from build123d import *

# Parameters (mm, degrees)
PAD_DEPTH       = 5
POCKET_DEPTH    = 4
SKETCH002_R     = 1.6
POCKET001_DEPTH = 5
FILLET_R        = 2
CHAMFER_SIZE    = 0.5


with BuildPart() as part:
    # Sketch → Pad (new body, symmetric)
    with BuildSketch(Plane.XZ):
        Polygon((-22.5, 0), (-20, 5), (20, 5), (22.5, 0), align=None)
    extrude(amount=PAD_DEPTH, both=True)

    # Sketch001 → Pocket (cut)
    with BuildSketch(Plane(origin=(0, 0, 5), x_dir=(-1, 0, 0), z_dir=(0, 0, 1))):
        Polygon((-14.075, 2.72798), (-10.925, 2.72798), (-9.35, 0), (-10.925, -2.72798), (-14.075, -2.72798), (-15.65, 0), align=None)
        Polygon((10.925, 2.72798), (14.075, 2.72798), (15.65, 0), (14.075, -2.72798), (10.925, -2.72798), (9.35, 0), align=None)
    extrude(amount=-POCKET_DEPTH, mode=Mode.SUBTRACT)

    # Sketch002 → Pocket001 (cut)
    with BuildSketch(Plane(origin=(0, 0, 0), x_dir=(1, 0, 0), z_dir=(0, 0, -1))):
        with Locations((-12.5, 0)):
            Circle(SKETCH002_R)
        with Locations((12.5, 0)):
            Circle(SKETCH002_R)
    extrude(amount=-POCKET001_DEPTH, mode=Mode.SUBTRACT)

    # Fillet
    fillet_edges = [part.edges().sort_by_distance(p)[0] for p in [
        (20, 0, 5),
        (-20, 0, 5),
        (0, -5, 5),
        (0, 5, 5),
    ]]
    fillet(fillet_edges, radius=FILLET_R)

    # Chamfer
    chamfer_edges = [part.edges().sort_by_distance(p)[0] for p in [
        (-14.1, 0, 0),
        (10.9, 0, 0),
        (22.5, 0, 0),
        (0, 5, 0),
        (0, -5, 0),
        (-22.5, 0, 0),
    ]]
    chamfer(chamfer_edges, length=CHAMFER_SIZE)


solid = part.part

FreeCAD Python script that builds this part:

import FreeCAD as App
import Part
import Sketcher
from FreeCAD import Vector
Q = App.Units.Quantity


def edges_at(feature, points):
    """Names of the edges that pass closest to the given points."""
    edges = feature.Shape.Edges
    near = lambda p: min(range(len(edges)), key=lambda i: edges[i].distToShape(Part.Vertex(*p))[0])
    return sorted({f"Edge{near(p) + 1}" for p in points})

doc = App.newDocument("Part")
body = doc.addObject("PartDesign::Body", "Body")

# Sketch on XZ plane
sketch1 = doc.addObject("Sketcher::SketchObject", "Sketch")
body.addObject(sketch1)
sketch1.AttachmentSupport = (doc.XZ_Plane, [""])
sketch1.MapMode = "FlatFace"
sketch1.addGeometry(Part.LineSegment(Vector(-20, 5, 0), Vector(-22, 0, 0)), False)
sketch1.addGeometry(Part.LineSegment(Vector(-22, 0, 0), Vector(22, 0, 0)), False)
sketch1.addGeometry(Part.LineSegment(Vector(22, 0, 0), Vector(20, 5, 0)), False)
sketch1.addGeometry(Part.LineSegment(Vector(20, 5, 0), Vector(-20, 5, 0)), False)
sketch1.addConstraint(Sketcher.Constraint("Coincident", 0, 2, 1, 1))
sketch1.addConstraint(Sketcher.Constraint("Coincident", 1, 2, 2, 1))
sketch1.addConstraint(Sketcher.Constraint("Coincident", 2, 2, 3, 1))
sketch1.addConstraint(Sketcher.Constraint("Coincident", 3, 2, 0, 1))
sketch1.addConstraint(Sketcher.Constraint("Horizontal", 1))
sketch1.addConstraint(Sketcher.Constraint("Horizontal", 3))
sketch1.addConstraint(Sketcher.Constraint("Symmetric", 0, 2, 1, 2, -1, 1))
sketch1.addConstraint(Sketcher.Constraint("Equal", 0, 2))
sketch1.addConstraint(Sketcher.Constraint("DistanceX", 1, 1, 1, 2, 45.0))
sketch1.addConstraint(Sketcher.Constraint("DistanceX", 3, 2, 3, 1, 40.0))
sketch1.addConstraint(Sketcher.Constraint("DistanceY", -1, 1, 2, 2, 5.0))
pad1 = doc.addObject("PartDesign::Pad", "Pad")
body.addObject(pad1)
pad1.Profile = sketch1
pad1.Length = 10
pad1.Midplane = True

# Sketch on XY plane
sketch2 = doc.addObject("Sketcher::SketchObject", "Sketch001")
body.addObject(sketch2)
sketch2.AttachmentSupport = (doc.XY_Plane, [""])
sketch2.MapMode = "FlatFace"
sketch2.AttachmentOffset = App.Placement(Vector(0, 0, 5), App.Rotation())
sketch2.addGeometry(Part.LineSegment(Vector(10.9, -2.7, 0), Vector(14.1, -2.7, 0)), False)
sketch2.addGeometry(Part.LineSegment(Vector(14.1, -2.7, 0), Vector(15.7, 0, 0)), False)
sketch2.addGeometry(Part.LineSegment(Vector(15.7, 0, 0), Vector(14.1, 2.7, 0)), False)
sketch2.addGeometry(Part.LineSegment(Vector(14.1, 2.7, 0), Vector(10.9, 2.7, 0)), False)
sketch2.addGeometry(Part.LineSegment(Vector(10.9, 2.7, 0), Vector(9.3, 0, 0)), False)
sketch2.addGeometry(Part.LineSegment(Vector(9.3, 0, 0), Vector(10.9, -2.7, 0)), False)
sketch2.addGeometry(Part.LineSegment(Vector(-14.1, -2.7, 0), Vector(-10.9, -2.7, 0)), False)
sketch2.addGeometry(Part.LineSegment(Vector(-10.9, -2.7, 0), Vector(-9.3, 0, 0)), False)
sketch2.addGeometry(Part.LineSegment(Vector(-9.3, 0, 0), Vector(-10.9, 2.7, 0)), False)
sketch2.addGeometry(Part.LineSegment(Vector(-10.9, 2.7, 0), Vector(-14.1, 2.7, 0)), False)
sketch2.addGeometry(Part.LineSegment(Vector(-14.1, 2.7, 0), Vector(-15.7, 0, 0)), False)
sketch2.addGeometry(Part.LineSegment(Vector(-15.7, 0, 0), Vector(-14.1, -2.7, 0)), False)
sketch2.addConstraint(Sketcher.Constraint("Coincident", 0, 2, 1, 1))
sketch2.addConstraint(Sketcher.Constraint("Coincident", 1, 2, 2, 1))
sketch2.addConstraint(Sketcher.Constraint("Coincident", 2, 2, 3, 1))
sketch2.addConstraint(Sketcher.Constraint("Coincident", 3, 2, 4, 1))
sketch2.addConstraint(Sketcher.Constraint("Coincident", 4, 2, 5, 1))
sketch2.addConstraint(Sketcher.Constraint("Coincident", 5, 2, 0, 1))
sketch2.addConstraint(Sketcher.Constraint("Coincident", 6, 2, 7, 1))
sketch2.addConstraint(Sketcher.Constraint("Coincident", 7, 2, 8, 1))
sketch2.addConstraint(Sketcher.Constraint("Coincident", 8, 2, 9, 1))
sketch2.addConstraint(Sketcher.Constraint("Coincident", 9, 2, 10, 1))
sketch2.addConstraint(Sketcher.Constraint("Coincident", 10, 2, 11, 1))
sketch2.addConstraint(Sketcher.Constraint("Coincident", 11, 2, 6, 1))
sketch2.addConstraint(Sketcher.Constraint("Horizontal", 0))
sketch2.addConstraint(Sketcher.Constraint("Horizontal", 3))
sketch2.addConstraint(Sketcher.Constraint("Horizontal", 6))
sketch2.addConstraint(Sketcher.Constraint("Horizontal", 9))
sketch2.addConstraint(Sketcher.Constraint("Symmetric", 3, 2, 6, 2, -1, 1))
sketch2.addConstraint(Sketcher.Constraint("Symmetric", 4, 2, 7, 2, -1, 1))
sketch2.addConstraint(Sketcher.Constraint("Symmetric", 5, 2, 8, 2, -1, 1))
sketch2.addConstraint(Sketcher.Constraint("Symmetric", 1, 2, 10, 2, -1, 1))
sketch2.addConstraint(Sketcher.Constraint("Symmetric", 5, 2, 6, 2, -2))
sketch2.addConstraint(Sketcher.Constraint("PointOnObject", 1, 2, -1))
sketch2.addConstraint(Sketcher.Constraint("PointOnObject", 4, 2, -1))
sketch2.addConstraint(Sketcher.Constraint("Parallel", 1, 4))
sketch2.addConstraint(Sketcher.Constraint("Parallel", 2, 5))
sketch2.addConstraint(Sketcher.Constraint("Parallel", 7, 10))
sketch2.addConstraint(Sketcher.Constraint("Parallel", 8, 11))
sketch2.addConstraint(Sketcher.Constraint("Angle", 1, Q("60 deg")))
sketch2.addConstraint(Sketcher.Constraint("DistanceX", 6, 2, 0, 2, 25.0))
sketch2.addConstraint(Sketcher.Constraint("DistanceX", 0, 1, 0, 2, 3.15))
sketch2.addConstraint(Sketcher.Constraint("DistanceX", 4, 2, 1, 2, 6.3))
pocket1 = doc.addObject("PartDesign::Pocket", "Pocket")
body.addObject(pocket1)
pocket1.Profile = sketch2
pocket1.Length = 4

# Sketch on XY plane
sketch3 = doc.addObject("Sketcher::SketchObject", "Sketch002")
body.addObject(sketch3)
sketch3.AttachmentSupport = (doc.XY_Plane, [""])
sketch3.MapMode = "FlatFace"
sketch3.addGeometry(Part.Circle(Vector(-12.5, 0, 0), Vector(0, 0, 1), 1.6), False)
sketch3.addGeometry(Part.Circle(Vector(12.5, 0, 0), Vector(0, 0, 1), 1.6), False)
sketch3.addConstraint(Sketcher.Constraint("Equal", 0, 1))
sketch3.addConstraint(Sketcher.Constraint("Symmetric", 0, 3, 1, 3, -1, 1))
sketch3.addConstraint(Sketcher.Constraint("PointOnObject", 0, 3, -1))
sketch3.addConstraint(Sketcher.Constraint("Diameter", 0, 3.2))
sketch3.addConstraint(Sketcher.Constraint("DistanceX", 0, 3, 1, 3, 25.0))
pocket2 = doc.addObject("PartDesign::Pocket", "Pocket001")
body.addObject(pocket2)
pocket2.Profile = sketch3
pocket2.Length = 5
pocket2.Reversed = True
doc.recompute()

fillet = doc.addObject("PartDesign::Fillet", "Fillet")
body.addObject(fillet)
fillet.Base = (pocket2, edges_at(pocket2, [
    (20, 0, 5),
    (-20, 0, 5),
    (0, -5, 5),
    (0, 5, 5),
]))
fillet.Radius = 2
doc.recompute()

chamfer = doc.addObject("PartDesign::Chamfer", "Chamfer")
body.addObject(chamfer)
chamfer.Base = (fillet, edges_at(fillet, [
    (-14.1, 0, 0),
    (10.9, 0, 0),
    (22.5, 0, 0),
    (0, 5, 0),
    (0, -5, 0),
    (-22.5, 0, 0),
]))
chamfer.Size = 0.5

doc.recompute()
